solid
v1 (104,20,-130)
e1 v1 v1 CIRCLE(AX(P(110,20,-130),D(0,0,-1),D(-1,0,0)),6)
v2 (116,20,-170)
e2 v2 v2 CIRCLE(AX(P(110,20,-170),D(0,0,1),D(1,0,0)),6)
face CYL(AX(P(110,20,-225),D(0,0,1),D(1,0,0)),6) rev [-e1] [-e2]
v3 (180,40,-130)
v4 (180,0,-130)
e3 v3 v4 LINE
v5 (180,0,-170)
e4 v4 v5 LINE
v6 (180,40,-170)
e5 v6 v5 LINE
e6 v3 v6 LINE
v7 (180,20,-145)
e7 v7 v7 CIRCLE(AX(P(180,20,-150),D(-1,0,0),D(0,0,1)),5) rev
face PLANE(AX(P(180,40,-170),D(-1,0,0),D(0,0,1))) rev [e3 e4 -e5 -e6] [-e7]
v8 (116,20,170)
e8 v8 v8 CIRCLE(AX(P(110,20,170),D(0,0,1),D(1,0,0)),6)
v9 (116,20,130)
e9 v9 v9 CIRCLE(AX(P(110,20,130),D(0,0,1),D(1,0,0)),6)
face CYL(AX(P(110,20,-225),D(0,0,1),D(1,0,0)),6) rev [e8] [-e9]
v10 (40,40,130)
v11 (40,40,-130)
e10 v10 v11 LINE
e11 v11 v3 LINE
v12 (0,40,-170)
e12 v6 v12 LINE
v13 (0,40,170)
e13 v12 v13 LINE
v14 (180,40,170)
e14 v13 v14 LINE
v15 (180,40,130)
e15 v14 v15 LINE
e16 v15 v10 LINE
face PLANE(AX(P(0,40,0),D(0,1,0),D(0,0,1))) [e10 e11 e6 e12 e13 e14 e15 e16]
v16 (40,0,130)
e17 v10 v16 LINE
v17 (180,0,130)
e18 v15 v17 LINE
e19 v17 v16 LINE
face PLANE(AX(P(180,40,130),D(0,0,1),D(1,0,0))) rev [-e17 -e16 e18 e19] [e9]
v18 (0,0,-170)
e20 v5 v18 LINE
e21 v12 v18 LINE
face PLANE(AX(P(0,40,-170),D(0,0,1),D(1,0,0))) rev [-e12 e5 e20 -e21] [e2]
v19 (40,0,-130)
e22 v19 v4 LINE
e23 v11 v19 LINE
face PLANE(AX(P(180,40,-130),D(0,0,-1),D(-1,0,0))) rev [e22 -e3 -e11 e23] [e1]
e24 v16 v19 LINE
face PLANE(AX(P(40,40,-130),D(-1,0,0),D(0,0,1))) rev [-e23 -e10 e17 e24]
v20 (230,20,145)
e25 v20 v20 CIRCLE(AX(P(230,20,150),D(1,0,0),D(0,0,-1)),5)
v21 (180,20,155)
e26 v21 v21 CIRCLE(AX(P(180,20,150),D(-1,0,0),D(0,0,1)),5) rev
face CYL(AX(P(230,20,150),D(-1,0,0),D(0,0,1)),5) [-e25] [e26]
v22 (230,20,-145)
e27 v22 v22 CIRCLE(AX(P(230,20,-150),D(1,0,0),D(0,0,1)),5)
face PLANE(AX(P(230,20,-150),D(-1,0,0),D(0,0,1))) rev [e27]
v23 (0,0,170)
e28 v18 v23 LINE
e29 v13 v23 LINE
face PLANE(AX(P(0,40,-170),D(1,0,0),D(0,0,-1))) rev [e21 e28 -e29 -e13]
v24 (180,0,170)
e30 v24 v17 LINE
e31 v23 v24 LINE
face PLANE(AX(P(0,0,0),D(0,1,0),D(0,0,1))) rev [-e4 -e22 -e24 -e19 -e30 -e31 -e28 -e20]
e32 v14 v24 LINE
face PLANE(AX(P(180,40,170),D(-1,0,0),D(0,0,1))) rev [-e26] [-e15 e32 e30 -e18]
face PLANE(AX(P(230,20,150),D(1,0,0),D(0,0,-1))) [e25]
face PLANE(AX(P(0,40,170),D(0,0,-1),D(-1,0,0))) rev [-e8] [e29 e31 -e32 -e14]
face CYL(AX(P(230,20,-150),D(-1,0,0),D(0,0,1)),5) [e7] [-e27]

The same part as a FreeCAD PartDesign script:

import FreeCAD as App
import Part
import Sketcher
from FreeCAD import Vector
Q = App.Units.Quantity

doc = App.newDocument("Part")
body = doc.addObject("PartDesign::Body", "Body")

# Sketch on XZ plane
sketch1 = body.newObject("Sketcher::SketchObject", "Sketch")
sketch1.AttachmentSupport = (doc.getObject("XZ_Plane"), [""])
sketch1.MapMode = "FlatFace"
sketch1.addGeometry(Part.LineSegment(Vector(180, -170, 0), Vector(0, -170, 0)), False)
sketch1.addGeometry(Part.LineSegment(Vector(0, -170, 0), Vector(0, 170, 0)), False)
sketch1.addGeometry(Part.LineSegment(Vector(0, 170, 0), Vector(180, 170, 0)), False)
sketch1.addGeometry(Part.LineSegment(Vector(180, 170, 0), Vector(180, 130, 0)), False)
sketch1.addGeometry(Part.LineSegment(Vector(180, 130, 0), Vector(40, 130, 0)), False)
sketch1.addGeometry(Part.LineSegment(Vector(40, 130, 0), Vector(40, -130, 0)), False)
sketch1.addGeometry(Part.LineSegment(Vector(40, -130, 0), Vector(180, -130, 0)), False)
sketch1.addGeometry(Part.LineSegment(Vector(180, -130, 0), Vector(180, -170, 0)), False)
sketch1.addConstraint(Sketcher.Constraint("Coincident", 0, 2, 1, 1))
sketch1.addConstraint(Sketcher.Constraint("Coincident", 1, 2, 2, 1))
sketch1.addConstraint(Sketcher.Constraint("Coincident", 2, 2, 3, 1))
sketch1.addConstraint(Sketcher.Constraint("Coincident", 3, 2, 4, 1))
sketch1.addConstraint(Sketcher.Constraint("Coincident", 4, 2, 5, 1))
sketch1.addConstraint(Sketcher.Constraint("Coincident", 5, 2, 6, 1))
sketch1.addConstraint(Sketcher.Constraint("Coincident", 6, 2, 7, 1))
sketch1.addConstraint(Sketcher.Constraint("Coincident", 7, 2, 0, 1))
sketch1.addConstraint(Sketcher.Constraint("Horizontal", 0))
sketch1.addConstraint(Sketcher.Constraint("Vertical", 1))
sketch1.addConstraint(Sketcher.Constraint("Horizontal", 2))
sketch1.addConstraint(Sketcher.Constraint("Vertical", 3))
sketch1.addConstraint(Sketcher.Constraint("Horizontal", 4))
sketch1.addConstraint(Sketcher.Constraint("Vertical", 5))
sketch1.addConstraint(Sketcher.Constraint("Horizontal", 6))
sketch1.addConstraint(Sketcher.Constraint("Vertical", 7))
sketch1.addConstraint(Sketcher.Constraint("Symmetric", 0, 2, 1, 2, -1, 1))
sketch1.addConstraint(Sketcher.Constraint("Symmetric", 3, 2, 6, 2, -1))
sketch1.addConstraint(Sketcher.Constraint("DistanceX", 0, 2, 0, 1, Q("180 mm")))
sketch1.addConstraint(Sketcher.Constraint("DistanceX", 4, 2, 4, 1, Q("140 mm")))
sketch1.addConstraint(Sketcher.Constraint("DistanceY", 1, 1, 1, 2, Q("340 mm")))
sketch1.addConstraint(Sketcher.Constraint("DistanceY", 3, 2, 3, 1, Q("40 mm")))
pad1 = body.newObject("PartDesign::Pad", "Pad")
pad1.Profile = sketch1
pad1.Length = 40
pad1.Reversed = True

# Sketch on XY plane
sketch2 = body.newObject("Sketcher::SketchObject", "Sketch001")
sketch2.AttachmentSupport = (doc.getObject("XY_Plane"), [""])
sketch2.MapMode = "FlatFace"
sketch2.AttachmentOffset = App.Placement(Vector(0, 0, 170), App.Rotation())
sketch2.addGeometry(Part.Circle(Vector(110, 20, 0), Vector(0, 0, 1), 6), False)
sketch2.addConstraint(Sketcher.Constraint("Diameter", 0, Q("12 mm")))
sketch2.addConstraint(Sketcher.Constraint("DistanceX", -1, 1, 0, 3, Q("110 mm")))
sketch2.addConstraint(Sketcher.Constraint("DistanceY", -1, 1, 0, 3, Q("20 mm")))
pocket1 = body.newObject("PartDesign::Pocket", "Pocket")
pocket1.Profile = sketch2
pocket1.Length = 395

# Sketch on YZ plane
sketch3 = body.newObject("Sketcher::SketchObject", "Sketch002")
sketch3.AttachmentSupport = (doc.getObject("YZ_Plane"), [""])
sketch3.MapMode = "FlatFace"
sketch3.AttachmentOffset = App.Placement(Vector(0, 0, 180), App.Rotation())
sketch3.addGeometry(Part.Circle(Vector(20, 150, 0), Vector(0, 0, 1), 5), False)
sketch3.addGeometry(Part.Circle(Vector(20, -150, 0), Vector(0, 0, 1), 5), False)
sketch3.addConstraint(Sketcher.Constraint("Equal", 0, 1))
sketch3.addConstraint(Sketcher.Constraint("Symmetric", 0, 3, 1, 3, -1))
sketch3.addConstraint(Sketcher.Constraint("Diameter", 0, Q("10 mm")))
sketch3.addConstraint(Sketcher.Constraint("DistanceX", -1, 1, 0, 3, Q("20 mm")))
sketch3.addConstraint(Sketcher.Constraint("DistanceY", -1, 1, 0, 3, Q("150 mm")))
pad2 = body.newObject("PartDesign::Pad", "Pad001")
pad2.Profile = sketch3
pad2.Length = 50

doc.recompute()
